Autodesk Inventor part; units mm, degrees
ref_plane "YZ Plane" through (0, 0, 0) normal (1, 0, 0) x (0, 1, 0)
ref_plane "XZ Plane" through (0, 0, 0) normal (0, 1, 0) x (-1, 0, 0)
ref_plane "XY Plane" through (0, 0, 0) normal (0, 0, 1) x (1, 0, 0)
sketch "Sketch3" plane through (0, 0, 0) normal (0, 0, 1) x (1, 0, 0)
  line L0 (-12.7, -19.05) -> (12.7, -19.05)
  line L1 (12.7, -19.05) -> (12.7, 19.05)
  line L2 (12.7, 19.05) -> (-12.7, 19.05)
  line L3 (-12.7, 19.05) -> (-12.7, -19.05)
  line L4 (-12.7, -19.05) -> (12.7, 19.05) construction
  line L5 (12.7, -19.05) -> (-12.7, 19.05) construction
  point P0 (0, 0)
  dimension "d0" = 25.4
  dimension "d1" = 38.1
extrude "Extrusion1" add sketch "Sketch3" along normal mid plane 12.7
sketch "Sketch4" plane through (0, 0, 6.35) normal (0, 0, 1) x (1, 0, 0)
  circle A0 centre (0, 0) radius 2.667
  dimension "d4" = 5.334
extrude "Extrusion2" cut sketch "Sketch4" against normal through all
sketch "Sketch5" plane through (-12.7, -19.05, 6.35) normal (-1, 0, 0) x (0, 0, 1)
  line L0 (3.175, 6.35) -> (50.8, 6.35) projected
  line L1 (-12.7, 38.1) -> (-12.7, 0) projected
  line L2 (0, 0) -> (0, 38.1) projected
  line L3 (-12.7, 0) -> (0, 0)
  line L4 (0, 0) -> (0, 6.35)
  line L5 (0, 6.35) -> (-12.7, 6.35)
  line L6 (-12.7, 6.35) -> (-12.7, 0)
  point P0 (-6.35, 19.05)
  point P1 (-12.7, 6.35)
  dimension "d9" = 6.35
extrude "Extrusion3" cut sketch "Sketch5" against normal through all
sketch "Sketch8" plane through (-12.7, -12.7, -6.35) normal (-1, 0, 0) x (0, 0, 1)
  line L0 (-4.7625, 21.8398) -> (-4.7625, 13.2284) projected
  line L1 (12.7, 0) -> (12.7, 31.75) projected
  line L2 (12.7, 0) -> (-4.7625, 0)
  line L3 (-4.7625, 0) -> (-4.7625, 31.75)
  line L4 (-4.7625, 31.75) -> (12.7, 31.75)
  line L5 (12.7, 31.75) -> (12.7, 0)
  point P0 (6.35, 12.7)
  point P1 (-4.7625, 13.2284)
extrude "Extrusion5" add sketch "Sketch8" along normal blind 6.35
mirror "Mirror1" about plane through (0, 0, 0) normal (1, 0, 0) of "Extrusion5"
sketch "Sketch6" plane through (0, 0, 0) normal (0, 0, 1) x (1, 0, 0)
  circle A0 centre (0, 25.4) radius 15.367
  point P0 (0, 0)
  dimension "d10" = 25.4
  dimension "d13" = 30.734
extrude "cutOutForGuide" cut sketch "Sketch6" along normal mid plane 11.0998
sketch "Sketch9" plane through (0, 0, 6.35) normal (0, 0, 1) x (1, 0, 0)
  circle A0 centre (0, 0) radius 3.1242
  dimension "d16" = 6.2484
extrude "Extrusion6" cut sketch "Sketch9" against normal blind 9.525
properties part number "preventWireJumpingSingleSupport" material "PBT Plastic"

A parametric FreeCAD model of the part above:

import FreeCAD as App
import Part
import Sketcher
from FreeCAD import Vector
Q = App.Units.Quantity

doc = App.newDocument("Part")
body = doc.addObject("PartDesign::Body", "Body")

# Sketch on XY plane
sketch1 = body.newObject("Sketcher::SketchObject", "Sketch")
sketch1.AttachmentSupport = (doc.getObject("XY_Plane"), [""])
sketch1.MapMode = "FlatFace"
sketch1.addGeometry([
    Part.LineSegment(Vector(-13, 19, 0), Vector(-13, -19, 0)),
    Part.LineSegment(Vector(-13, -19, 0), Vector(13, -19, 0)),
    Part.LineSegment(Vector(13, -19, 0), Vector(13, 19, 0)),
    Part.LineSegment(Vector(13, 19, 0), Vector(-13, 19, 0)),
], False)
sketch1.addConstraint([
    Sketcher.Constraint("Coincident", 0, 2, 1, 1),
    Sketcher.Constraint("Coincident", 1, 2, 2, 1),
    Sketcher.Constraint("Coincident", 2, 2, 3, 1),
    Sketcher.Constraint("Coincident", 3, 2, 0, 1),
    Sketcher.Constraint("Vertical", 0),
    Sketcher.Constraint("Horizontal", 1),
    Sketcher.Constraint("Vertical", 2),
    Sketcher.Constraint("Horizontal", 3),
    Sketcher.Constraint("Symmetric", 0, 2, 2, 2, -1, 1),
    Sketcher.Constraint("DistanceX", 1, 1, 1, 2, Q("1 in")),
    Sketcher.Constraint("DistanceY", 0, 2, 0, 1, Q("1.5 in")),
])
pad1 = body.newObject("PartDesign::Pad", "Pad")
pad1.Profile = sketch1
pad1.Length = Q("0.5 in")
pad1.Midplane = True

# Sketch on XY plane
sketch2 = body.newObject("Sketcher::SketchObject", "Sketch001")
sketch2.AttachmentSupport = (doc.getObject("XY_Plane"), [""])
sketch2.MapMode = "FlatFace"
sketch2.AttachmentOffset = App.Placement(Vector(0, 0, 0.25 * 25.4), App.Rotation())
sketch2.addGeometry(Part.Circle(Vector(0, 0, 0), Vector(0, 0, 1), 2.7), False)
sketch2.addConstraint([
    Sketcher.Constraint("Coincident", 0, 3, -1, 1),
    Sketcher.Constraint("Diameter", 0, Q("0.21 in")),
])
pocket1 = body.newObject("PartDesign::Pocket", "Pocket")
pocket1.Profile = sketch2
pocket1.Type = "ThroughAll"

# Sketch on YZ plane
sketch3 = body.newObject("Sketcher::SketchObject", "Sketch002")
sketch3.AttachmentSupport = (doc.getObject("YZ_Plane"), [""])
sketch3.MapMode = "FlatFace"
sketch3.AttachmentOffset = App.Placement(Vector(0, 0, -0.5 * 25.4), App.Rotation())
sketch3.addGeometry([
    Part.LineSegment(Vector(-13, 6, 0), Vector(-13, -6, 0)),
    Part.LineSegment(Vector(-13, -6, 0), Vector(-19, -6, 0)),
    Part.LineSegment(Vector(-19, -6, 0), Vector(-19, 6, 0)),
    Part.LineSegment(Vector(-19, 6, 0), Vector(-13, 6, 0)),
], False)
sketch3.addConstraint([
    Sketcher.Constraint("Coincident", 0, 2, 1, 1),
    Sketcher.Constraint("Coincident", 1, 2, 2, 1),
    Sketcher.Constraint("Coincident", 2, 2, 3, 1),
    Sketcher.Constraint("Coincident", 3, 2, 0, 1),
    Sketcher.Constraint("Vertical", 0),
    Sketcher.Constraint("Horizontal", 1),
    Sketcher.Constraint("Vertical", 2),
    Sketcher.Constraint("Horizontal", 3),
    Sketcher.Constraint("DistanceX", 1, 2, 1, 1, Q("0.25 in")),
    Sketcher.Constraint("DistanceY", 0, 2, -1, 1, Q("0.25 in")),
    Sketcher.Constraint("DistanceY", -1, 1, 2, 2, Q("0.25 in")),
    Sketcher.Constraint("DistanceX", 0, 2, -1, 1, Q("0.5 in")),
])
pocket2 = body.newObject("PartDesign::Pocket", "Pocket001")
pocket2.Profile = sketch3
pocket2.Type = "ThroughAll"
pocket2.Reversed = True

# Sketch on YZ plane
sketch4 = body.newObject("Sketcher::SketchObject", "Sketch003")
sketch4.AttachmentSupport = (doc.getObject("YZ_Plane"), [""])
sketch4.MapMode = "FlatFace"
sketch4.AttachmentOffset = App.Placement(Vector(0, 0, -0.5 * 25.4), App.Rotation())
sketch4.addGeometry([
    Part.LineSegment(Vector(19, -11, 0), Vector(-13, -11, 0)),
    Part.LineSegment(Vector(-13, -11, 0), Vector(-13, 6, 0)),
    Part.LineSegment(Vector(-13, 6, 0), Vector(19, 6, 0)),
    Part.LineSegment(Vector(19, 6, 0), Vector(19, -11, 0)),
], False)
sketch4.addConstraint([
    Sketcher.Constraint("Coincident", 0, 2, 1, 1),
    Sketcher.Constraint("Coincident", 1, 2, 2, 1),
    Sketcher.Constraint("Coincident", 2, 2, 3, 1),
    Sketcher.Constraint("Coincident", 3, 2, 0, 1),
    Sketcher.Constraint("Horizontal", 0),
    Sketcher.Constraint("Vertical", 1),
    Sketcher.Constraint("Horizontal", 2),
    Sketcher.Constraint("Vertical", 3),
    Sketcher.Constraint("DistanceX", 0, 2, 0, 1, Q("1.25 in")),
    Sketcher.Constraint("DistanceX", 0, 2, -1, 1, Q("0.5 in")),
    Sketcher.Constraint("DistanceY", 1, 1, 1, 2, Q("0.6875 in")),
    Sketcher.Constraint("DistanceY", -1, 1, 1, 2, Q("0.25 in")),
])
pad2 = body.newObject("PartDesign::Pad", "Pad001")
pad2.Profile = sketch4
pad2.Length = Q("0.25 in")
pad2.Reversed = True
doc.recompute()

mirrored = body.newObject("PartDesign::Mirrored", "Mirrored")
mirrored.Originals = [pad2]
mirrored.MirrorPlane = (doc.getObject("YZ_Plane"), [""])
body.Tip = mirrored

# Sketch on XY plane
sketch5 = body.newObject("Sketcher::SketchObject", "Sketch004")
sketch5.AttachmentSupport = (doc.getObject("XY_Plane"), [""])
sketch5.MapMode = "FlatFace"
sketch5.addGeometry(Part.Circle(Vector(0, 25, 0), Vector(0, 0, 1), 15), False)
sketch5.addConstraint([
    Sketcher.Constraint("PointOnObject", 0, 3, -2),
    Sketcher.Constraint("Diameter", 0, Q("1.21 in")),
    Sketcher.Constraint("DistanceY", -1, 1, 0, 3, Q("1 in")),
])
pocket3 = body.newObject("PartDesign::Pocket", "Pocket002")
pocket3.Profile = sketch5
pocket3.Length = Q("0.437 in")
pocket3.Midplane = True

# Sketch on XY plane
sketch6 = body.newObject("Sketcher::SketchObject", "Sketch005")
sketch6.AttachmentSupport = (doc.getObject("XY_Plane"), [""])
sketch6.MapMode = "FlatFace"
sketch6.AttachmentOffset = App.Placement(Vector(0, 0, 0.25 * 25.4), App.Rotation())
sketch6.addGeometry(Part.Circle(Vector(0, 0, 0), Vector(0, 0, 1), 3.1), False)
sketch6.addConstraint([
    Sketcher.Constraint("Coincident", 0, 3, -1, 1),
    Sketcher.Constraint("Diameter", 0, Q("0.246 in")),
])
pocket4 = body.newObject("PartDesign::Pocket", "Pocket003")
pocket4.Profile = sketch6
pocket4.Length = Q("0.375 in")

doc.recompute()
